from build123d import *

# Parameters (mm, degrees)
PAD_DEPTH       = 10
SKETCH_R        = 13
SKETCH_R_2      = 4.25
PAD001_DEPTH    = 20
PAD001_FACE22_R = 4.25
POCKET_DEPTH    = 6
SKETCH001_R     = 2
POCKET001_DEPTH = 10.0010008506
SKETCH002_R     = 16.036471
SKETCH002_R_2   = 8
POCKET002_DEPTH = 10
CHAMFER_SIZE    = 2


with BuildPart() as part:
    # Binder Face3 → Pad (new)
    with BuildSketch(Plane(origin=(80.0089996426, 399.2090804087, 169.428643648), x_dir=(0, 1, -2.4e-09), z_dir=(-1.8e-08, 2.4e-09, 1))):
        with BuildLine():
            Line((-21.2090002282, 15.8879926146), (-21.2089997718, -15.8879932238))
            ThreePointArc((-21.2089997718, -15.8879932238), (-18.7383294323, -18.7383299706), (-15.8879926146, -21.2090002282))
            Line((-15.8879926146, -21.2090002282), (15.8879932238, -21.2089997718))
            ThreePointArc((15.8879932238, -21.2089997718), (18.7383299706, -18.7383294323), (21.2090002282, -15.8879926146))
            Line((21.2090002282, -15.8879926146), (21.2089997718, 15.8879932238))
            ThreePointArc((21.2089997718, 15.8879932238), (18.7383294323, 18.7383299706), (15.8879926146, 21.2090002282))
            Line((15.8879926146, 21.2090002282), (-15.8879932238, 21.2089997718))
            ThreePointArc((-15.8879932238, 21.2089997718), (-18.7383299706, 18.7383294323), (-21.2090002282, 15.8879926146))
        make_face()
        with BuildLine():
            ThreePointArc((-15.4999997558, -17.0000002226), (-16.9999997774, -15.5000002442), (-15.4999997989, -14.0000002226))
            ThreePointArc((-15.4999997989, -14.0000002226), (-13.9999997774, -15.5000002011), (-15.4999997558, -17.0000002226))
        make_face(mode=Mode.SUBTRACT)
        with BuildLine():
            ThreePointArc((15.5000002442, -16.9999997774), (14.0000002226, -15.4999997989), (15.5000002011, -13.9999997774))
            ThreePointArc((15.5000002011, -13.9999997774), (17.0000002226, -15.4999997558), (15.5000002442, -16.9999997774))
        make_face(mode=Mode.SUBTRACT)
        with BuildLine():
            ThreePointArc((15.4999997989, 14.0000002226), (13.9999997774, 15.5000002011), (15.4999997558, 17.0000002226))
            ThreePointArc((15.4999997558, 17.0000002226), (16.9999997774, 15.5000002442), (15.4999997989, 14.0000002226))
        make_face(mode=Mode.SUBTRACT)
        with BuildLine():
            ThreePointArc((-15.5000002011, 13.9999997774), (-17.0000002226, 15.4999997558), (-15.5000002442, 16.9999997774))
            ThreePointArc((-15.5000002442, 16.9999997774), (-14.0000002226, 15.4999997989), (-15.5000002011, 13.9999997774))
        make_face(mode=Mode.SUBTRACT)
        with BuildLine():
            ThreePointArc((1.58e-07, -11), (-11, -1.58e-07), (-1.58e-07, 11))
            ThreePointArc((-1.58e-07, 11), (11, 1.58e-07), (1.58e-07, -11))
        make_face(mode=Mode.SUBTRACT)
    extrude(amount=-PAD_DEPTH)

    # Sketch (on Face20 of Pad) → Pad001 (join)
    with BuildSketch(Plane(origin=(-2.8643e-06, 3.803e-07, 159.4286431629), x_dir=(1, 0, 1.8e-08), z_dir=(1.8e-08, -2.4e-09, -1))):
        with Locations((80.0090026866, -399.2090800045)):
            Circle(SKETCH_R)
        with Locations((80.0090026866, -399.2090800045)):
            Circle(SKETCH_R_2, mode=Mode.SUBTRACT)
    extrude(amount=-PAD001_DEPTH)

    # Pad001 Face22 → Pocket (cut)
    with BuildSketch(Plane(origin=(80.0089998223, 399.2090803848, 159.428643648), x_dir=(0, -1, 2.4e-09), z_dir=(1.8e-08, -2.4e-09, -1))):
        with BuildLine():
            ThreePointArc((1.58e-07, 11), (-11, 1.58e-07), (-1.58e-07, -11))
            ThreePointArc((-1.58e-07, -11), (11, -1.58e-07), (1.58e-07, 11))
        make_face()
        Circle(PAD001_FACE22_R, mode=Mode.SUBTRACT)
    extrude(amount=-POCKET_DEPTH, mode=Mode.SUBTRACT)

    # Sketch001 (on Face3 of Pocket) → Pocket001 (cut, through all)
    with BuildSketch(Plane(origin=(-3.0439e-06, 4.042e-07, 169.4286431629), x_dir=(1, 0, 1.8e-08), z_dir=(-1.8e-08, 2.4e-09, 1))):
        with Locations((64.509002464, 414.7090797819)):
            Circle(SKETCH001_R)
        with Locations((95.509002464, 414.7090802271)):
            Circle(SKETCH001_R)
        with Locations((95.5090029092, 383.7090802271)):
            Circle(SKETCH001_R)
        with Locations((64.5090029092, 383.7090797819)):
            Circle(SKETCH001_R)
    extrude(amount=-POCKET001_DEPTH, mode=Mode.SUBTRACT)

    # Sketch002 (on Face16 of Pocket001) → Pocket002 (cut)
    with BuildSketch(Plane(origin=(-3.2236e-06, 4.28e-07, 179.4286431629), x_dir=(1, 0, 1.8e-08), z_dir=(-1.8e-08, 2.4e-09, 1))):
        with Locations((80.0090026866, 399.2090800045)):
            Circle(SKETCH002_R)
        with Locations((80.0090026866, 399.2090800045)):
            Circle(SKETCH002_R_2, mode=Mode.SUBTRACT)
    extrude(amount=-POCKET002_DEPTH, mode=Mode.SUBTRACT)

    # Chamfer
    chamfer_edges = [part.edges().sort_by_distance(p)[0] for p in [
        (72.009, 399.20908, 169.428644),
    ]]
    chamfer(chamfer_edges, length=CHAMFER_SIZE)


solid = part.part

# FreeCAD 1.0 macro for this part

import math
import FreeCAD as App
import Part
import Sketcher
from FreeCAD import Vector
Q = App.Units.Quantity


def edges_at(feature, points):
    """Names of the edges that pass closest to the given points."""
    edges = feature.Shape.Edges
    near = lambda p: min(range(len(edges)), key=lambda i: edges[i].distToShape(Part.Vertex(*p))[0])
    return sorted({f"Edge{near(p) + 1}" for p in points})

doc = App.newDocument("Part")
body = doc.addObject("PartDesign::Body", "Body")

sketch1 = body.newObject("Sketcher::SketchObject", "Sketch")
sketch1.AttachmentSupport = (doc.getObject("XY_Plane"), [""])
sketch1.MapMode = "FlatFace"
sketch1.AttachmentOffset = App.Placement(Vector(0, 0, 169.428644), App.Rotation())
sketch1.addGeometry([
    Part.LineSegment(Vector(64.121007, 378.00008, 0), Vector(95.896993, 378.000081, 0)),
    Part.ArcOfCircle(Part.Circle(Vector(80.009, 399.20908, 0), Vector(0, 0, 1), 26.5), math.radians(-53.162545), math.radians(-36.837453)),
    Part.LineSegment(Vector(101.218, 383.321088, 0), Vector(101.217999, 415.097074, 0)),
    Part.ArcOfCircle(Part.Circle(Vector(80.009, 399.20908, 0), Vector(0, 0, 1), 26.5), math.radians(36.837455), math.radians(53.162547)),
    Part.LineSegment(Vector(95.896992, 420.418081, 0), Vector(64.121006, 420.41808, 0)),
    Part.ArcOfCircle(Part.Circle(Vector(80.009, 399.20908, 0), Vector(0, 0, 1), 26.5), math.radians(126.837455), math.radians(143.162547)),
    Part.LineSegment(Vector(58.799999, 415.097073, 0), Vector(58.8, 383.321087, 0)),
    Part.ArcOfCircle(Part.Circle(Vector(80.009, 399.20908, 0), Vector(0, 0, 1), 26.5), math.radians(-143.162545), math.radians(-126.837453)),
    Part.Circle(Vector(95.509, 383.709081, 0), Vector(0, 0, 1), 1.5),
    Part.Circle(Vector(95.508999, 414.709081, 0), Vector(0, 0, 1), 1.5),
    Part.Circle(Vector(64.509, 383.70908, 0), Vector(0, 0, 1), 1.5),
    Part.Circle(Vector(80.009, 399.20908, 0), Vector(0, 0, 1), 11),
    Part.Circle(Vector(64.508999, 414.70908, 0), Vector(0, 0, 1), 1.5),
], False)
sketch1.addConstraint([
    Sketcher.Constraint("Coincident", 0, 2, 1, 1),
    Sketcher.Constraint("Coincident", 1, 2, 2, 1),
    Sketcher.Constraint("Coincident", 2, 2, 3, 1),
    Sketcher.Constraint("Coincident", 3, 2, 4, 1),
    Sketcher.Constraint("Coincident", 4, 2, 5, 1),
    Sketcher.Constraint("Coincident", 5, 2, 6, 1),
    Sketcher.Constraint("Coincident", 6, 2, 7, 1),
    Sketcher.Constraint("Coincident", 7, 2, 0, 1),
    Sketcher.Constraint("Horizontal", 0),
    Sketcher.Constraint("Vertical", 2),
    Sketcher.Constraint("Horizontal", 4),
    Sketcher.Constraint("Vertical", 6),
    Sketcher.Constraint("Coincident", 3, 3, 1, 3),
    Sketcher.Constraint("Coincident", 5, 3, 1, 3),
    Sketcher.Constraint("Coincident", 7, 3, 1, 3),
    Sketcher.Constraint("Coincident", 11, 3, 1, 3),
    Sketcher.Constraint("Equal", 1, 3),
    Sketcher.Constraint("Equal", 3, 5),
    Sketcher.Constraint("Equal", 5, 7),
    Sketcher.Constraint("Equal", 8, 9),
    Sketcher.Constraint("Equal", 9, 10),
    Sketcher.Constraint("Equal", 10, 12),
    Sketcher.Constraint("Horizontal", 8, 3, 10, 3),
    Sketcher.Constraint("Horizontal", 9, 3, 12, 3),
    Sketcher.Constraint("Horizontal", 2, 2, 5, 2),
    Sketcher.Constraint("Vertical", 8, 3, 9, 3),
    Sketcher.Constraint("Vertical", 10, 3, 12, 3),
    Sketcher.Constraint("Vertical", 0, 2, 3, 2),
    Sketcher.Constraint("Equal", 4, 2),
    Sketcher.Constraint("Diameter", 8, Q("3 mm")),
    Sketcher.Constraint("Diameter", 11, Q("22 mm")),
    Sketcher.Constraint("Radius", 1, Q("26.5 mm")),
    Sketcher.Constraint("DistanceY", 8, 3, 9, 3, Q("31 mm")),
    Sketcher.Constraint("DistanceX", 10, 3, 8, 3, Q("31 mm")),
    Sketcher.Constraint("DistanceX", -1, 1, 5, 2, Q("58.799999 mm")),
    Sketcher.Constraint("DistanceX", 1, 3, 8, 3, Q("15.5 mm")),
    Sketcher.Constraint("DistanceY", 8, 3, 1, 3, Q("15.5 mm")),
    Sketcher.Constraint("DistanceX", -1, 1, 1, 3, Q("80.009 mm")),
    Sketcher.Constraint("DistanceY", -1, 1, 1, 3, Q("399.20908 mm")),
])
pad1 = body.newObject("PartDesign::Pad", "Pad")
pad1.Profile = sketch1
pad1.Length = 10
pad1.Reversed = True

sketch2 = body.newObject("Sketcher::SketchObject", "Sketch001")
sketch2.AttachmentSupport = (doc.getObject("XY_Plane"), [""])
sketch2.MapMode = "FlatFace"
sketch2.AttachmentOffset = App.Placement(Vector(0, 0, 159.428643), App.Rotation())
sketch2.addGeometry([
    Part.Circle(Vector(80.009, 399.20908, 0), Vector(0, 0, 1), 13),
    Part.Circle(Vector(80.009, 399.20908, 0), Vector(0, 0, 1), 4.25),
], False)
sketch2.addConstraint([
    Sketcher.Constraint("Coincident", 1, 3, 0, 3),
    Sketcher.Constraint("Diameter", 0, Q("26 mm")),
    Sketcher.Constraint("Diameter", 1, Q("8.5 mm")),
    Sketcher.Constraint("DistanceX", -1, 1, 0, 3, Q("80.009 mm")),
    Sketcher.Constraint("DistanceY", -1, 1, 0, 3, Q("399.20908 mm")),
])
pad2 = body.newObject("PartDesign::Pad", "Pad001")
pad2.Profile = sketch2
pad2.Length = 20

sketch3 = body.newObject("Sketcher::SketchObject", "Sketch002")
sketch3.AttachmentSupport = (doc.getObject("XY_Plane"), [""])
sketch3.MapMode = "FlatFace"
sketch3.AttachmentOffset = App.Placement(Vector(0, 0, 159.428644), App.Rotation())
sketch3.addGeometry([
    Part.Circle(Vector(80.009, 399.20908, 0), Vector(0, 0, 1), 11),
    Part.Circle(Vector(80.009, 399.20908, 0), Vector(0, 0, 1), 4.25),
], False)
sketch3.addConstraint([
    Sketcher.Constraint("Coincident", 1, 3, 0, 3),
    Sketcher.Constraint("Diameter", 0, Q("22 mm")),
    Sketcher.Constraint("Diameter", 1, Q("8.5 mm")),
    Sketcher.Constraint("DistanceX", -1, 1, 0, 3, Q("80.009 mm")),
    Sketcher.Constraint("DistanceY", -1, 1, 0, 3, Q("399.20908 mm")),
])
pocket1 = body.newObject("PartDesign::Pocket", "Pocket")
pocket1.Profile = sketch3
pocket1.Length = 6
pocket1.Reversed = True

sketch4 = body.newObject("Sketcher::SketchObject", "Sketch003")
sketch4.AttachmentSupport = (doc.getObject("XY_Plane"), [""])
sketch4.MapMode = "FlatFace"
sketch4.AttachmentOffset = App.Placement(Vector(0, 0, 169.428643), App.Rotation())
sketch4.addGeometry([
    Part.Circle(Vector(64.508999, 414.70908, 0), Vector(0, 0, 1), 2),
    Part.Circle(Vector(95.508999, 414.709081, 0), Vector(0, 0, 1), 2),
    Part.Circle(Vector(95.509, 383.709081, 0), Vector(0, 0, 1), 2),
    Part.Circle(Vector(64.509, 383.70908, 0), Vector(0, 0, 1), 2),
], False)
sketch4.addConstraint([
    Sketcher.Constraint("Equal", 0, 1),
    Sketcher.Constraint("Equal", 1, 2),
    Sketcher.Constraint("Equal", 2, 3),
    Sketcher.Constraint("Horizontal", 0, 3, 1, 3),
    Sketcher.Constraint("Horizontal", 2, 3, 3, 3),
    Sketcher.Constraint("Vertical", 1, 3, 2, 3),
    Sketcher.Constraint("Vertical", 0, 3, 3, 3),
    Sketcher.Constraint("Diameter", 0, Q("4 mm")),
    Sketcher.Constraint("DistanceX", 0, 3, 1, 3, Q("31 mm")),
    Sketcher.Constraint("DistanceY", 2, 3, 1, 3, Q("31 mm")),
    Sketcher.Constraint("DistanceX", -1, 1, 0, 3, Q("64.508999 mm")),
    Sketcher.Constraint("DistanceY", -1, 1, 0, 3, Q("414.70908 mm")),
])
pocket2 = body.newObject("PartDesign::Pocket", "Pocket001")
pocket2.Profile = sketch4
pocket2.Type = "ThroughAll"

sketch5 = body.newObject("Sketcher::SketchObject", "Sketch004")
sketch5.AttachmentSupport = (doc.getObject("XY_Plane"), [""])
sketch5.MapMode = "FlatFace"
sketch5.AttachmentOffset = App.Placement(Vector(0, 0, 179.428643), App.Rotation())
sketch5.addGeometry([
    Part.Circle(Vector(80.008999, 399.20908, 0), Vector(0, 0, 1), 16.036471),
    Part.Circle(Vector(80.008999, 399.20908, 0), Vector(0, 0, 1), 8),
], False)
sketch5.addConstraint([
    Sketcher.Constraint("Coincident", 1, 3, 0, 3),
    Sketcher.Constraint("Diameter", 1, Q("16 mm")),
    Sketcher.Constraint("Diameter", 0, Q("32.072942 mm")),
    Sketcher.Constraint("DistanceX", -1, 1, 0, 3, Q("80.008999 mm")),
    Sketcher.Constraint("DistanceY", -1, 1, 0, 3, Q("399.20908 mm")),
])
pocket3 = body.newObject("PartDesign::Pocket", "Pocket002")
pocket3.Profile = sketch5
pocket3.Length = 10
doc.recompute()

chamfer = body.newObject("PartDesign::Chamfer", "Chamfer")
chamfer.Base = (pocket3, edges_at(pocket3, [(72.009, 399.209, 169.429)]))
chamfer.Size = 2

doc.recompute()
